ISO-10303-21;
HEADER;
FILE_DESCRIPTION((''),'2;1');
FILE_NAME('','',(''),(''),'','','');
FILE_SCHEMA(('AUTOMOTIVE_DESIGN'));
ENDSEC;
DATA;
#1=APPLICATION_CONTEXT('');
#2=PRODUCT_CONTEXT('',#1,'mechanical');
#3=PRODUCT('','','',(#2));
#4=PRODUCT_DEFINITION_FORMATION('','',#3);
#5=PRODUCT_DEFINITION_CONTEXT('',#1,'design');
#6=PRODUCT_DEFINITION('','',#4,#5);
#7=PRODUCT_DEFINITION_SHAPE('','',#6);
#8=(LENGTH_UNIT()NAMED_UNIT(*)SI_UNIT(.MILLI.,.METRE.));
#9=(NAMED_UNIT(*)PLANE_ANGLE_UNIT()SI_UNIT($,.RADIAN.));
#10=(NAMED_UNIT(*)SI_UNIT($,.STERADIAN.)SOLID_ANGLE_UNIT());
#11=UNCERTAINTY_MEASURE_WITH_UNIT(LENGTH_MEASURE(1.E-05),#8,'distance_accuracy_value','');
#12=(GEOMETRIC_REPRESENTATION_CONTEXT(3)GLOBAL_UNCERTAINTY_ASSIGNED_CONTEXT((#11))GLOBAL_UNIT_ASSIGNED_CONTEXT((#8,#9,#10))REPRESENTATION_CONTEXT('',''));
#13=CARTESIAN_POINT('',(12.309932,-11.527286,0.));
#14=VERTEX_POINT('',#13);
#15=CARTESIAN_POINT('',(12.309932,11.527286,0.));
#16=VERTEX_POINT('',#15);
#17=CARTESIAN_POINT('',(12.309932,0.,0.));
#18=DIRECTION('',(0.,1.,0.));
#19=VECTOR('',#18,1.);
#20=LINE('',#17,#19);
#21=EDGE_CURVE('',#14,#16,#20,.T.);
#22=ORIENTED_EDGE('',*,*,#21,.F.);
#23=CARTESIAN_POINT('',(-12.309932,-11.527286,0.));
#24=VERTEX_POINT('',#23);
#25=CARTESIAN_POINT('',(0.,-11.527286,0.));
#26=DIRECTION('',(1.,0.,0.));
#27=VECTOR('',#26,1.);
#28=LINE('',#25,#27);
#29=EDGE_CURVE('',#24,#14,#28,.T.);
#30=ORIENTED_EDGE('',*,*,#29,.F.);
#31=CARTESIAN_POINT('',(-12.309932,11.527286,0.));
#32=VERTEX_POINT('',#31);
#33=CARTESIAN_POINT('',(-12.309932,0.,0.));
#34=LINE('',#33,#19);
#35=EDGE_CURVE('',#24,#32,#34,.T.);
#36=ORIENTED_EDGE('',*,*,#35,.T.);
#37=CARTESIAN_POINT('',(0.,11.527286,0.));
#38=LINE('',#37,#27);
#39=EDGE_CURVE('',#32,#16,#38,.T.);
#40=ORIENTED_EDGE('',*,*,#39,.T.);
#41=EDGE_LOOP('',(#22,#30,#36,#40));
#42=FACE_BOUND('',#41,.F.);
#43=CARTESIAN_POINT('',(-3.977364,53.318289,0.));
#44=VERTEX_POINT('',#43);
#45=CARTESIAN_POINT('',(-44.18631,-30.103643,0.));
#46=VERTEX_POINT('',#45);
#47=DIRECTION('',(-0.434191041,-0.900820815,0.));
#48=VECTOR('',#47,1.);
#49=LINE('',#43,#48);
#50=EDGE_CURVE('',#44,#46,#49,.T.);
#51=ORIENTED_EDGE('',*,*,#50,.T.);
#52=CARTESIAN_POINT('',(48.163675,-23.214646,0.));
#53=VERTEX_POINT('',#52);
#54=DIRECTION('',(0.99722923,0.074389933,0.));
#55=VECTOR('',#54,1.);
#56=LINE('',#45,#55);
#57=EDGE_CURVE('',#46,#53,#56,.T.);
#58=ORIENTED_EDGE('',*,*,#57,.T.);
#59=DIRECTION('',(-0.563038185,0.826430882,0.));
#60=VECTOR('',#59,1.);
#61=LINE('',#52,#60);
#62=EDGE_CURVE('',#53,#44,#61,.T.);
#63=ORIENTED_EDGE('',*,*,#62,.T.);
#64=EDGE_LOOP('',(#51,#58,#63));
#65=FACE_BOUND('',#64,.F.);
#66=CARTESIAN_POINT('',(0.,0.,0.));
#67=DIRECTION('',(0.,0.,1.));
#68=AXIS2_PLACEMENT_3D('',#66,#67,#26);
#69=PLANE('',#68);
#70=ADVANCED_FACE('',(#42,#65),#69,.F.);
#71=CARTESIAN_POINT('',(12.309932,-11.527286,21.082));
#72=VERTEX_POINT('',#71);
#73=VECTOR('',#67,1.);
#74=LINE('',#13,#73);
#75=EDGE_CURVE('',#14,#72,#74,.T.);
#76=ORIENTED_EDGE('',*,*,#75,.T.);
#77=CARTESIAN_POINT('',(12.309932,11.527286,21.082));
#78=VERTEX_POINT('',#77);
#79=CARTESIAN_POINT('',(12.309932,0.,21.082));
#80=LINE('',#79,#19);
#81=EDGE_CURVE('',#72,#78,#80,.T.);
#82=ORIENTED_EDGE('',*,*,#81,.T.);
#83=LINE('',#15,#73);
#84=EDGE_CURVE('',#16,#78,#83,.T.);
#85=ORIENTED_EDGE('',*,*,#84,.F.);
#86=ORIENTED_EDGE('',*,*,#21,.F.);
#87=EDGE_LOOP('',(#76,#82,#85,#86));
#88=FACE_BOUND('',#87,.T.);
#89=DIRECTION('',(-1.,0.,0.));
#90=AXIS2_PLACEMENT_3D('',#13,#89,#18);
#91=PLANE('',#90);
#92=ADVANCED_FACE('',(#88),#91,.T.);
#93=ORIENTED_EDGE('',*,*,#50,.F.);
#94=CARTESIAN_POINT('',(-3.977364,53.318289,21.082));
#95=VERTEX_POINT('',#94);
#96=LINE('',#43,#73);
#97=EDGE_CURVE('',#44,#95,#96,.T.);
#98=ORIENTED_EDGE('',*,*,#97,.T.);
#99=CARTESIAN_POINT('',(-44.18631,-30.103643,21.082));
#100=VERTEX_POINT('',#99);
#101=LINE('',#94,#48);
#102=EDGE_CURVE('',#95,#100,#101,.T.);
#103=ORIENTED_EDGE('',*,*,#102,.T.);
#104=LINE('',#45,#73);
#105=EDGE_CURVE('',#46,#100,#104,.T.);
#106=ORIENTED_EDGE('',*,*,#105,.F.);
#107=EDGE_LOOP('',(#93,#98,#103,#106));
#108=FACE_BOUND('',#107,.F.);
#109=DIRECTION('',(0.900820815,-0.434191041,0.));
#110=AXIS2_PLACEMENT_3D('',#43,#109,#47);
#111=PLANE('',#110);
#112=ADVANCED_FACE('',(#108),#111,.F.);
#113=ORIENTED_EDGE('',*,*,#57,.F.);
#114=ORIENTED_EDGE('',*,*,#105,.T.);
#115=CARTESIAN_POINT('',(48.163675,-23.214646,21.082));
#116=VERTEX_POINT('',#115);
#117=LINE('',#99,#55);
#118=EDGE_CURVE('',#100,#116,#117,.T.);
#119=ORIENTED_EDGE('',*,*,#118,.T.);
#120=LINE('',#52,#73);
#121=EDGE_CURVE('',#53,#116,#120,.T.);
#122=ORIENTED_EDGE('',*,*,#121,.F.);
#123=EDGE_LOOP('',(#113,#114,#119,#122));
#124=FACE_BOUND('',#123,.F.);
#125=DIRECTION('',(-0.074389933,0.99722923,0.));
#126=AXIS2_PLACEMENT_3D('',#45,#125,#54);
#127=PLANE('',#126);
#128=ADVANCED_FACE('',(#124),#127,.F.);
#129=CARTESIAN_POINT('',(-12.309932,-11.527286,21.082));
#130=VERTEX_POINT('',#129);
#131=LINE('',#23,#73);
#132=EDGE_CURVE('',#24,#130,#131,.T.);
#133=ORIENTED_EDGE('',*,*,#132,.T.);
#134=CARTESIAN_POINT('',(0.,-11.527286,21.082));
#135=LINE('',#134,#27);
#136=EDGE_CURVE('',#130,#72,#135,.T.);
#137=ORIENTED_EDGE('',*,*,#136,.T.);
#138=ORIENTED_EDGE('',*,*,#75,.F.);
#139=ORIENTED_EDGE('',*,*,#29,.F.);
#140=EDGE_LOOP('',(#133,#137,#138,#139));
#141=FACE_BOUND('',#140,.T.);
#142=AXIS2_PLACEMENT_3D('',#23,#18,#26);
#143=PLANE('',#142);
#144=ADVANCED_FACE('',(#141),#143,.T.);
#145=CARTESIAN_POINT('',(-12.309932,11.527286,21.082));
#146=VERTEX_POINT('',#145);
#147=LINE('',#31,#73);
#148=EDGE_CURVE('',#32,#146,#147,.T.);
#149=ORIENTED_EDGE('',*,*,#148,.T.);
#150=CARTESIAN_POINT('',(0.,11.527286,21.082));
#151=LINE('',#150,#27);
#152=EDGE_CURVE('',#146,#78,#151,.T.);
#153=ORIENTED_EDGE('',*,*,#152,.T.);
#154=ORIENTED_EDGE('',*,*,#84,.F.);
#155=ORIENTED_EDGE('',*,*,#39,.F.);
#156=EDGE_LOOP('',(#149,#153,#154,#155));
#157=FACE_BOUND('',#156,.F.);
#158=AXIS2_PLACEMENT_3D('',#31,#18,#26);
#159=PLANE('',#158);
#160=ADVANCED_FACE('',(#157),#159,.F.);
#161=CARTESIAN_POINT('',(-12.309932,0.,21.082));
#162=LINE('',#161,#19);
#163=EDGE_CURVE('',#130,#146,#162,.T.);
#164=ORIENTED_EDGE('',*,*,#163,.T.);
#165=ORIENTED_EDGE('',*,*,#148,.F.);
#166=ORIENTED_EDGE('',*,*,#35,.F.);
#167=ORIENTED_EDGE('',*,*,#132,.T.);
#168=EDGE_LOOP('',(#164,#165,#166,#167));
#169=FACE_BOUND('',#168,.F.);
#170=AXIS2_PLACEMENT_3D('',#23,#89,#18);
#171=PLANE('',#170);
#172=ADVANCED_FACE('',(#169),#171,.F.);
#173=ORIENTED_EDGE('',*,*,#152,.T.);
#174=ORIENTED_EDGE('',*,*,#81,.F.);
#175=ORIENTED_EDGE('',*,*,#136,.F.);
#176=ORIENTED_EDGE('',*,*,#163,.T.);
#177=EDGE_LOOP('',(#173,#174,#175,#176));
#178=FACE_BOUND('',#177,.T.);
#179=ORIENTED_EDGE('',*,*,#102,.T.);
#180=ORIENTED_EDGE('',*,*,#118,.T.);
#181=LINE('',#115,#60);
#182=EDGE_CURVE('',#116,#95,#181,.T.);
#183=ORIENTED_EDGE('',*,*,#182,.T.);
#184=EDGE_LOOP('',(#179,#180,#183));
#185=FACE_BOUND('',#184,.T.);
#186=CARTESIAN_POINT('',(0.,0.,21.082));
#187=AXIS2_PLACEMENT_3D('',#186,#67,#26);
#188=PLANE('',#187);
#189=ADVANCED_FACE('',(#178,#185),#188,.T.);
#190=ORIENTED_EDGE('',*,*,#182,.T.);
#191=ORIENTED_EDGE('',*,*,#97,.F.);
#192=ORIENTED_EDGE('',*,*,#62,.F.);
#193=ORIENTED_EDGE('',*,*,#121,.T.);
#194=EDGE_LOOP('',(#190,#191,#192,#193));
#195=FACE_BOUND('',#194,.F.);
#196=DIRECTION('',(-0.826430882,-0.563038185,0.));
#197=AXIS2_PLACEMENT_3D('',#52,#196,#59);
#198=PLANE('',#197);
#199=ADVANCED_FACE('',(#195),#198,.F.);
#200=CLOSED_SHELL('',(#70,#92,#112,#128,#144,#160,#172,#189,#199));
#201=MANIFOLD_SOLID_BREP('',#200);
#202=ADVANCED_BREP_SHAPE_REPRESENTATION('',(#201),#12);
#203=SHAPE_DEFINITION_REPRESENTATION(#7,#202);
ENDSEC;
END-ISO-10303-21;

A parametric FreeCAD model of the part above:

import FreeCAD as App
import Part
import Sketcher
from FreeCAD import Vector
Q = App.Units.Quantity

doc = App.newDocument("Part")
body = doc.addObject("PartDesign::Body", "Body")

# Sketch on XY plane
sketch1 = body.newObject("Sketcher::SketchObject", "Sketch")
sketch1.AttachmentSupport = (doc.getObject("XY_Plane"), [""])
sketch1.MapMode = "FlatFace"
sketch1.addGeometry(Part.LineSegment(Vector(-4, 53, 0), Vector(-44, -30, 0)), False)
sketch1.addGeometry(Part.LineSegment(Vector(-44, -30, 0), Vector(48, -23, 0)), False)
sketch1.addGeometry(Part.LineSegment(Vector(48, -23, 0), Vector(-4, 53, 0)), False)
sketch1.addGeometry(Part.LineSegment(Vector(12, -12, 0), Vector(-12, -12, 0)), False)
sketch1.addGeometry(Part.LineSegment(Vector(-12, -12, 0), Vector(-12, 12, 0)), False)
sketch1.addGeometry(Part.LineSegment(Vector(-12, 12, 0), Vector(12, 12, 0)), False)
sketch1.addGeometry(Part.LineSegment(Vector(12, 12, 0), Vector(12, -12, 0)), False)
sketch1.addConstraint(Sketcher.Constraint("Coincident", 0, 2, 1, 1))
sketch1.addConstraint(Sketcher.Constraint("Coincident", 1, 2, 2, 1))
sketch1.addConstraint(Sketcher.Constraint("Coincident", 2, 2, 0, 1))
sketch1.addConstraint(Sketcher.Constraint("Coincident", 3, 2, 4, 1))
sketch1.addConstraint(Sketcher.Constraint("Coincident", 4, 2, 5, 1))
sketch1.addConstraint(Sketcher.Constraint("Coincident", 5, 2, 6, 1))
sketch1.addConstraint(Sketcher.Constraint("Coincident", 6, 2, 3, 1))
sketch1.addConstraint(Sketcher.Constraint("Horizontal", 3))
sketch1.addConstraint(Sketcher.Constraint("Vertical", 4))
sketch1.addConstraint(Sketcher.Constraint("Horizontal", 5))
sketch1.addConstraint(Sketcher.Constraint("Vertical", 6))
sketch1.addConstraint(Sketcher.Constraint("Symmetric", 3, 2, 5, 2, -1, 1))
sketch1.addConstraint(Sketcher.Constraint("Equal", 0, 1))
sketch1.addConstraint(Sketcher.Constraint("Equal", 1, 2))
sketch1.addConstraint(Sketcher.Constraint("DistanceX", 3, 2, 3, 1, Q("24.619864 mm")))
sketch1.addConstraint(Sketcher.Constraint("DistanceY", 4, 1, 4, 2, Q("23.054572 mm")))
sketch1.addConstraint(Sketcher.Constraint("DistanceX", 0, 2, -1, 1, Q("44.18631 mm")))
sketch1.addConstraint(Sketcher.Constraint("DistanceY", -1, 1, 2, 2, Q("53.318289 mm")))
sketch1.addConstraint(Sketcher.Constraint("DistanceY", 0, 2, 2, 2, Q("83.421932 mm")))
sketch1.addConstraint(Sketcher.Constraint("DistanceX", 2, 2, 1, 2, Q("52.141039 mm")))
pad1 = body.newObject("PartDesign::Pad", "Pad")
pad1.Profile = sketch1
pad1.Length = Q("0.83 in")

doc.recompute()
